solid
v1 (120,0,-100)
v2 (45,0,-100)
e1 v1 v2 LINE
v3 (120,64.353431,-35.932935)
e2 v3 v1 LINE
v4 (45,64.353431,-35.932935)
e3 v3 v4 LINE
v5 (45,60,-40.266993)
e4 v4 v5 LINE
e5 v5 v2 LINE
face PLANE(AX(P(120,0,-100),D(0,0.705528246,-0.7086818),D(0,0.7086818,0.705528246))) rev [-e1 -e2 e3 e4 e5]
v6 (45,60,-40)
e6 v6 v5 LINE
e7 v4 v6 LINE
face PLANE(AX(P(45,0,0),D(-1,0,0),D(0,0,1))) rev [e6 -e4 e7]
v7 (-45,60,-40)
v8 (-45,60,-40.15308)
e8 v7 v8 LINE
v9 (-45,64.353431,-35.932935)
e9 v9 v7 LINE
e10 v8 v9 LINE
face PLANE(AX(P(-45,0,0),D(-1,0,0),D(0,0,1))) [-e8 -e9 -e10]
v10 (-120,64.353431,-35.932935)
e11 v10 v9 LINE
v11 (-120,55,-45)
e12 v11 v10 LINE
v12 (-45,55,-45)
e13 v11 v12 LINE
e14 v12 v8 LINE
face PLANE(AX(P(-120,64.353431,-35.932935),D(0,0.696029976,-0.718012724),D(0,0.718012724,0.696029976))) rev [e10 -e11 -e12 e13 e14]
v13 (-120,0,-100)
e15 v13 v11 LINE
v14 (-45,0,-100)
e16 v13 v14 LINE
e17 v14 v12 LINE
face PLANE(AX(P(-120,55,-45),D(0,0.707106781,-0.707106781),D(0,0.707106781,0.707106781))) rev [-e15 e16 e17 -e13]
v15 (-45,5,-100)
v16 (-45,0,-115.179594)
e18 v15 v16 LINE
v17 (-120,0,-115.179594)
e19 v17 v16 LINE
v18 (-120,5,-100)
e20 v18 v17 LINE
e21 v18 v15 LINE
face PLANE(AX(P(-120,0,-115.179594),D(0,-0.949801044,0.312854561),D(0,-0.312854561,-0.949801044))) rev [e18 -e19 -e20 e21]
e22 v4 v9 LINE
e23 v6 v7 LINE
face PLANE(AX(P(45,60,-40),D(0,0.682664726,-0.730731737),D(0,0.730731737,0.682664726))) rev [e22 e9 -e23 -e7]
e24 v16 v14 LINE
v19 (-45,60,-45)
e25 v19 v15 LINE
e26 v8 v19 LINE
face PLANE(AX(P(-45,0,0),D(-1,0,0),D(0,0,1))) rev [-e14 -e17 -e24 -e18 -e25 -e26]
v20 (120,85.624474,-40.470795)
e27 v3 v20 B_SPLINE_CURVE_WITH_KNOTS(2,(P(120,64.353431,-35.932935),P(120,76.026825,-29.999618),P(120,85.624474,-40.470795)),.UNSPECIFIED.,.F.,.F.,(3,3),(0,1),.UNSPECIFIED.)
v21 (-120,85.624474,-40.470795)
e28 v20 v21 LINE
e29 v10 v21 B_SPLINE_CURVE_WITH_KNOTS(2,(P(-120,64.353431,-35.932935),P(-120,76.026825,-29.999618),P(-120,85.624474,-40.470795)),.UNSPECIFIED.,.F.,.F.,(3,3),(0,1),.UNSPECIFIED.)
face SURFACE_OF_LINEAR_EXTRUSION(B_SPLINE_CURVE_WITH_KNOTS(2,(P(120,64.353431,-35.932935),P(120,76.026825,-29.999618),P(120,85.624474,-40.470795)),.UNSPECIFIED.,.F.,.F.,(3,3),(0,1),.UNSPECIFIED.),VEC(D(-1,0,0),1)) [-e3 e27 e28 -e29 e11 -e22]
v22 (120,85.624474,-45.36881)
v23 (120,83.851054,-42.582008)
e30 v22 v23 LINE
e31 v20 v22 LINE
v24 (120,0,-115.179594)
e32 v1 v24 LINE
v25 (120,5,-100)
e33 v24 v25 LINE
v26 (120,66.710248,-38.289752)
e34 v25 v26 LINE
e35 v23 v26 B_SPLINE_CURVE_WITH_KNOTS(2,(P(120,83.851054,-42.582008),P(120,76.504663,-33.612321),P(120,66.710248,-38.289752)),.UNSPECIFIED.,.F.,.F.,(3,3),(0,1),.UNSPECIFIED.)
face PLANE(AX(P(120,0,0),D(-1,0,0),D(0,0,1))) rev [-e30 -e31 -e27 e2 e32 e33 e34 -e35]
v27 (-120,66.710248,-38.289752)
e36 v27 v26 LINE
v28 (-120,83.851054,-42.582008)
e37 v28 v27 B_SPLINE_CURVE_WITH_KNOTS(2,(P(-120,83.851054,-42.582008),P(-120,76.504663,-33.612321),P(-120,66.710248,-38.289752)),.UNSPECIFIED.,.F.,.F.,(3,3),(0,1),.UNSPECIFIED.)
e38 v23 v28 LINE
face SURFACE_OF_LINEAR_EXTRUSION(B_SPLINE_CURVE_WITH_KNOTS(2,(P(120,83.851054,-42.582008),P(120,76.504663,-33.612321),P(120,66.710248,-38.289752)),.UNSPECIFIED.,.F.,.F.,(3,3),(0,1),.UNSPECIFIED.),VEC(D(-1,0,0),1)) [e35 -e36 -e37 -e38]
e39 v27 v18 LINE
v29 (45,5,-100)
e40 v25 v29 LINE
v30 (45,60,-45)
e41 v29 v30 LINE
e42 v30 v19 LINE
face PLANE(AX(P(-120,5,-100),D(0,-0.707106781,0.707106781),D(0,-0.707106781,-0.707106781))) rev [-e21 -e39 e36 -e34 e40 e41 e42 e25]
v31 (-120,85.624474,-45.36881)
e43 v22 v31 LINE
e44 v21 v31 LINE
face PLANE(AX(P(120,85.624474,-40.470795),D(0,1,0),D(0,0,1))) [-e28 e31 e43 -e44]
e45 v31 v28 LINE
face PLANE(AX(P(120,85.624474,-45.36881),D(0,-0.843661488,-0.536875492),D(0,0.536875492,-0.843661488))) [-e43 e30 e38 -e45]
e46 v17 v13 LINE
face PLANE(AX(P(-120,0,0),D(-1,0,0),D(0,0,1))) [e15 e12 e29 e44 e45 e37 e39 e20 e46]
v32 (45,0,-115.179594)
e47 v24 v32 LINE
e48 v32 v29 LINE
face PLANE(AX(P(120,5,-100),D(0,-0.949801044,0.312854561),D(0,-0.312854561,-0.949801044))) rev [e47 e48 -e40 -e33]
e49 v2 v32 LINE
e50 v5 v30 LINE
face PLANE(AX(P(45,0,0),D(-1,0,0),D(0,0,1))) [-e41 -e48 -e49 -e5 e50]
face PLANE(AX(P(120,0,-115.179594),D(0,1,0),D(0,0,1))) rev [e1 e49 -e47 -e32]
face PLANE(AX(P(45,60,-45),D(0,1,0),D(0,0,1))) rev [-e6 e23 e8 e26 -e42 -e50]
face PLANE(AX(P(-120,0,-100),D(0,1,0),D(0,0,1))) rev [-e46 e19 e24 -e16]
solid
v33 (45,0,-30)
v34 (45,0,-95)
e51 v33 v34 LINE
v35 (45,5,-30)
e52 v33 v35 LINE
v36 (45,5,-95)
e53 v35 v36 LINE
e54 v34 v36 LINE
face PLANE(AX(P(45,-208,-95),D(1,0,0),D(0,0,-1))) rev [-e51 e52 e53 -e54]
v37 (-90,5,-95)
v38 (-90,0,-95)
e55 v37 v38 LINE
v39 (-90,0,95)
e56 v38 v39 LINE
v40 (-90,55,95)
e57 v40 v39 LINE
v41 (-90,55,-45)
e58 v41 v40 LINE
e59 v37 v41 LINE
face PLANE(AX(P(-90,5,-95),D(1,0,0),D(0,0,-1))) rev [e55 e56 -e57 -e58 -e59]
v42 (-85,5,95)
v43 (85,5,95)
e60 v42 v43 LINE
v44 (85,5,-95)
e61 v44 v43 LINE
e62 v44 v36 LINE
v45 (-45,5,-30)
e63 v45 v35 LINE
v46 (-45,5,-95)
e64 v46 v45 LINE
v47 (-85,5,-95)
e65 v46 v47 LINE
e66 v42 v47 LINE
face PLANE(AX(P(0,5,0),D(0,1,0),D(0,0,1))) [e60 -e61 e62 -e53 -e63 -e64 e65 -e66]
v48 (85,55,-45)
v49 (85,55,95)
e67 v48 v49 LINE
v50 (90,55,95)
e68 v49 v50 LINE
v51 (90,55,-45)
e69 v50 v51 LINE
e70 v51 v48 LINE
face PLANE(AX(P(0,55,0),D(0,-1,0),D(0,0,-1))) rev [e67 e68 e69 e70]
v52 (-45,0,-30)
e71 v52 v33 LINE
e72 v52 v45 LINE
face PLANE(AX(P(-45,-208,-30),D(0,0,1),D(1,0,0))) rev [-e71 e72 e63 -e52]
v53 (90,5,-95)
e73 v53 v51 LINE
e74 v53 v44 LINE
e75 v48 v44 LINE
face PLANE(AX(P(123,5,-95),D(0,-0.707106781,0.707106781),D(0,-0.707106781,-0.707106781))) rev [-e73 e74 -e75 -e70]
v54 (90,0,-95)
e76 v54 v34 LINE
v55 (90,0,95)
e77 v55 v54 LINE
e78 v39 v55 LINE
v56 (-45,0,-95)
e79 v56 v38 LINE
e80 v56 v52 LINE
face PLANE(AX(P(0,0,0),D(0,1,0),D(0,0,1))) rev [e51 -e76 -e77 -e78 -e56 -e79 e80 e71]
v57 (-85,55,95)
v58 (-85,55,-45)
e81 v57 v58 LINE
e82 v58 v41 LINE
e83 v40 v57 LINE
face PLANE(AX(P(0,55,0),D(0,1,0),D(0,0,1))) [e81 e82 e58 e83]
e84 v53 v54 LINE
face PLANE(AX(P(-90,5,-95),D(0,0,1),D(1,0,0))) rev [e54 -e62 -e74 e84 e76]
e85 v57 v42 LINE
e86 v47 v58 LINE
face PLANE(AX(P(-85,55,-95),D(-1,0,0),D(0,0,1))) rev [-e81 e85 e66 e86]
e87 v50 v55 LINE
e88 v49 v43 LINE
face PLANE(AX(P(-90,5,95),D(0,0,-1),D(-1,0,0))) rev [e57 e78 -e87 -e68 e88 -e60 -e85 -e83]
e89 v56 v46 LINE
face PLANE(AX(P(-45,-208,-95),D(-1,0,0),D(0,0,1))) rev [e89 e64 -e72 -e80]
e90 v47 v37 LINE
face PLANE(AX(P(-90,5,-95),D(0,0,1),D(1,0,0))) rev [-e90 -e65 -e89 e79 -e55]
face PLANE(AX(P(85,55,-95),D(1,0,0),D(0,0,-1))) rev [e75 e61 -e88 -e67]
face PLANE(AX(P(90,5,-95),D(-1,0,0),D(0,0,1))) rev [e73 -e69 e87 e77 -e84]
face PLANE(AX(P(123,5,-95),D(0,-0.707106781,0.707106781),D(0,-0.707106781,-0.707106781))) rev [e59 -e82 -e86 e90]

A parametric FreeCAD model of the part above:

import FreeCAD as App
import Part
import Sketcher
from FreeCAD import Vector
Q = App.Units.Quantity

doc = App.newDocument("Part")
params = doc.addObject("Spreadsheet::Sheet", "Params")
for row, (alias, value) in enumerate([
    ("sketch1_width", "180 mm"),
    ("sketch1_height", "190 mm"),
    ("pad1_length", "5 mm"),
    ("sketch2_width", "5 mm"),
    ("sketch2_height", "190 mm"),
    ("pad2_length", "50 mm"),
    ("sketch3_width", "50 mm"),
    ("pocket1_length", "213 mm"),
    ("sketch4_width", "90 mm"),
    ("sketch4_height", "65 mm"),
    ("pocket2_length", "213 mm"),
    ("pad3_length", "30 mm"),
    ("pad3_length2", "45 mm"),
    ("sketch6_height", "5 mm"),
    ("pad4_length", "90 mm"),
    ("pad5_length", "75 mm"),
    ("pad6_length", "240 mm"),
], start=1):
    params.set(f"A{row}", alias)
    params.set(f"B{row}", "=" + value)
    params.setAlias(f"B{row}", alias)

body = doc.addObject("PartDesign::Body", "Body")

# Sketch on XZ plane
sketch1 = body.newObject("Sketcher::SketchObject", "Sketch")
sketch1.AttachmentSupport = (doc.getObject("XZ_Plane"), [""])
sketch1.MapMode = "FlatFace"
sketch1.addGeometry([
    Part.LineSegment(Vector(-90, -95, 0), Vector(-90, 95, 0)),
    Part.LineSegment(Vector(-90, 95, 0), Vector(90, 95, 0)),
    Part.LineSegment(Vector(90, 95, 0), Vector(90, -95, 0)),
    Part.LineSegment(Vector(90, -95, 0), Vector(-90, -95, 0)),
], False)
sketch1.addConstraint([
    Sketcher.Constraint("Coincident", 0, 2, 1, 1),
    Sketcher.Constraint("Coincident", 1, 2, 2, 1),
    Sketcher.Constraint("Coincident", 2, 2, 3, 1),
    Sketcher.Constraint("Coincident", 3, 2, 0, 1),
    Sketcher.Constraint("Vertical", 0),
    Sketcher.Constraint("Horizontal", 1),
    Sketcher.Constraint("Vertical", 2),
    Sketcher.Constraint("Horizontal", 3),
    Sketcher.Constraint("Symmetric", 0, 2, 2, 2, -1, 1),
    Sketcher.Constraint("DistanceX", 1, 1, 1, 2, 180.0),
    Sketcher.Constraint("DistanceY", 0, 1, 0, 2, 190.0),
])
sketch1.setExpression("Constraints[9]", "Params.sketch1_width")
sketch1.setExpression("Constraints[10]", "Params.sketch1_height")
pad1 = body.newObject("PartDesign::Pad", "Pad")
pad1.Profile = sketch1
pad1.setExpression("Length", "Params.pad1_length")
pad1.Reversed = True

# Sketch on XZ plane
sketch2 = body.newObject("Sketcher::SketchObject", "Sketch001")
sketch2.AttachmentSupport = (doc.getObject("XZ_Plane"), [""])
sketch2.MapMode = "FlatFace"
sketch2.AttachmentOffset = App.Placement(Vector(0, 0, -5), App.Rotation())
sketch2.addGeometry([
    Part.LineSegment(Vector(-90, -95, 0), Vector(-90, 95, 0)),  # 0
    Part.LineSegment(Vector(-90, 95, 0), Vector(-85, 95, 0)),  # 1
    Part.LineSegment(Vector(-85, 95, 0), Vector(-85, -95, 0)),  # 2
    Part.LineSegment(Vector(-85, -95, 0), Vector(-90, -95, 0)),  # 3
    Part.LineSegment(Vector(85, -95, 0), Vector(85, 95, 0)),  # 4
    Part.LineSegment(Vector(85, 95, 0), Vector(90, 95, 0)),  # 5
    Part.LineSegment(Vector(90, 95, 0), Vector(90, -95, 0)),  # 6
    Part.LineSegment(Vector(90, -95, 0), Vector(85, -95, 0)),  # 7
], False)
sketch2.addConstraint([
    Sketcher.Constraint("Coincident", 0, 2, 1, 1),
    Sketcher.Constraint("Coincident", 1, 2, 2, 1),
    Sketcher.Constraint("Coincident", 2, 2, 3, 1),
    Sketcher.Constraint("Coincident", 3, 2, 0, 1),
    Sketcher.Constraint("Coincident", 4, 2, 5, 1),
    Sketcher.Constraint("Coincident", 5, 2, 6, 1),
    Sketcher.Constraint("Coincident", 6, 2, 7, 1),
    Sketcher.Constraint("Coincident", 7, 2, 4, 1),
    Sketcher.Constraint("Vertical", 0),
    Sketcher.Constraint("Horizontal", 1),
    Sketcher.Constraint("Vertical", 2),
    Sketcher.Constraint("Horizontal", 3),
    Sketcher.Constraint("Vertical", 4),
    Sketcher.Constraint("Horizontal", 5),
    Sketcher.Constraint("Vertical", 6),
    Sketcher.Constraint("Horizontal", 7),
    Sketcher.Constraint("Symmetric", 2, 2, 4, 2, -1, 1),
    Sketcher.Constraint("Symmetric", 0, 2, 6, 2, -1, 1),
    Sketcher.Constraint("Horizontal", 1, 2, 4, 2),
    Sketcher.Constraint("DistanceX", 1, 1, 1, 2, 5.0),
    Sketcher.Constraint("DistanceY", 0, 1, 0, 2, 190.0),
    Sketcher.Constraint("DistanceX", 0, 2, -1, 1, 90.0),
])
sketch2.setExpression("Constraints[19]", "Params.sketch2_width")
sketch2.setExpression("Constraints[20]", "Params.sketch2_height")
pad2 = body.newObject("PartDesign::Pad", "Pad001")
pad2.Profile = sketch2
pad2.setExpression("Length", "Params.pad2_length")
pad2.Reversed = True

# Sketch on YZ plane
sketch3 = body.newObject("Sketcher::SketchObject", "Sketch002")
sketch3.AttachmentSupport = (doc.getObject("YZ_Plane"), [""])
sketch3.MapMode = "FlatFace"
sketch3.AttachmentOffset = App.Placement(Vector(0, 0, -90), App.Rotation())
sketch3.addGeometry([
    Part.LineSegment(Vector(5, -95, 0), Vector(55, -45, 0)),
    Part.LineSegment(Vector(55, -45, 0), Vector(55, -95, 0)),
    Part.LineSegment(Vector(55, -95, 0), Vector(5, -95, 0)),
], False)
sketch3.addConstraint([
    Sketcher.Constraint("Coincident", 0, 2, 1, 1),
    Sketcher.Constraint("Coincident", 1, 2, 2, 1),
    Sketcher.Constraint("Coincident", 2, 2, 0, 1),
    Sketcher.Constraint("Vertical", 1),
    Sketcher.Constraint("Horizontal", 2),
    Sketcher.Constraint("Equal", 2, 1),
    Sketcher.Constraint("DistanceX", 2, 2, 2, 1, 50.0),
    Sketcher.Constraint("DistanceX", -1, 1, 0, 2, 55.0),
    Sketcher.Constraint("DistanceY", 0, 2, -1, 1, 45.0),
])
sketch3.setExpression("Constraints[6]", "Params.sketch3_width")
pocket1 = body.newObject("PartDesign::Pocket", "Pocket")
pocket1.Profile = sketch3
pocket1.setExpression("Length", "Params.pocket1_length")
pocket1.Reversed = True

# Sketch on XZ plane
sketch4 = body.newObject("Sketcher::SketchObject", "Sketch003")
sketch4.AttachmentSupport = (doc.getObject("XZ_Plane"), [""])
sketch4.MapMode = "FlatFace"
sketch4.AttachmentOffset = App.Placement(Vector(0, 0, -5), App.Rotation())
sketch4.addGeometry([
    Part.LineSegment(Vector(-45, -95, 0), Vector(-45, -30, 0)),
    Part.LineSegment(Vector(-45, -30, 0), Vector(45, -30, 0)),
    Part.LineSegment(Vector(45, -30, 0), Vector(45, -95, 0)),
    Part.LineSegment(Vector(45, -95, 0), Vector(-45, -95, 0)),
], False)
sketch4.addConstraint([
    Sketcher.Constraint("Coincident", 0, 2, 1, 1),
    Sketcher.Constraint("Coincident", 1, 2, 2, 1),
    Sketcher.Constraint("Coincident", 2, 2, 3, 1),
    Sketcher.Constraint("Coincident", 3, 2, 0, 1),
    Sketcher.Constraint("Vertical", 0),
    Sketcher.Constraint("Horizontal", 1),
    Sketcher.Constraint("Vertical", 2),
    Sketcher.Constraint("Horizontal", 3),
    Sketcher.Constraint("DistanceX", 1, 1, 1, 2, 90.0),
    Sketcher.Constraint("DistanceY", 0, 1, 0, 2, 65.0),
    Sketcher.Constraint("DistanceX", 0, 2, -1, 1, 45.0),
    Sketcher.Constraint("DistanceY", 0, 2, -1, 1, 30.0),
])
sketch4.setExpression("Constraints[8]", "Params.sketch4_width")
sketch4.setExpression("Constraints[9]", "Params.sketch4_height")
pocket2 = body.newObject("PartDesign::Pocket", "Pocket001")
pocket2.Profile = sketch4
pocket2.setExpression("Length", "Params.pocket2_length")
pocket2.Reversed = True
body2 = doc.addObject("PartDesign::Body", "Body001")

# Sketch on YZ plane
sketch5 = body2.newObject("Sketcher::SketchObject", "Sketch004")
sketch5.AttachmentSupport = (doc.getObject("YZ_Plane001"), [""])
sketch5.MapMode = "FlatFace"
sketch5.AttachmentOffset = App.Placement(Vector(0, 0, -90), App.Rotation())
sketch5.addGeometry([
    Part.LineSegment(Vector(0, -100, 0), Vector(55, -45, 0)),  # 0
    Part.LineSegment(Vector(55, -45, 0), Vector(64.4, -35.9, 0)),  # 1
    Part.LineSegment(Vector(64.4, -35.9, 0), Vector(66.7, -38.3, 0)),  # 2
    Part.LineSegment(Vector(66.7, -38.3, 0), Vector(5, -100, 0)),  # 3
    Part.LineSegment(Vector(5, -100, 0), Vector(0, -115.2, 0)),  # 4
    Part.LineSegment(Vector(0, -115.2, 0), Vector(0, -100, 0)),  # 5
], False)
sketch5.addConstraint([
    Sketcher.Constraint("Coincident", 0, 2, 1, 1),
    Sketcher.Constraint("Coincident", 1, 2, 2, 1),
    Sketcher.Constraint("Coincident", 2, 2, 3, 1),
    Sketcher.Constraint("Coincident", 3, 2, 4, 1),
    Sketcher.Constraint("Coincident", 4, 2, 5, 1),
    Sketcher.Constraint("Coincident", 5, 2, 0, 1),
    Sketcher.Constraint("Vertical", 5),
    Sketcher.Constraint("PointOnObject", 4, 2, -2),
    Sketcher.Constraint("Perpendicular", 0, 2),
    Sketcher.Constraint("Perpendicular", 2, 3),
    Sketcher.Constraint("Horizontal", 3, 2, 5, 2),
    Sketcher.Constraint("Angle", 0, Q("45 deg")),
    Sketcher.Constraint("DistanceX", -1, 1, 0, 2, 55.0),
    Sketcher.Constraint("DistanceY", 0, 2, -1, 1, 45.0),
    Sketcher.Constraint("DistanceX", -1, 1, 3, 2, 5.0),
    Sketcher.Constraint("Distance", 1, 13.026831),
    Sketcher.Constraint("Distance", 3, 87.271469),
    Sketcher.Constraint("DistanceY", 5, 1, 5, 2, 15.179594),
])
pad3 = body2.newObject("PartDesign::Pad", "Pad002")
pad3.Profile = sketch5
pad3.Type = "TwoLengths"
pad3.setExpression("Length", "Params.pad3_length")
pad3.setExpression("Length2", "Params.pad3_length2")
pad3.Reversed = True

# Sketch on YZ plane
sketch6 = body2.newObject("Sketcher::SketchObject", "Sketch005")
sketch6.AttachmentSupport = (doc.getObject("YZ_Plane001"), [""])
sketch6.MapMode = "FlatFace"
sketch6.AttachmentOffset = App.Placement(Vector(0, 0, -45), App.Rotation())
sketch6.addGeometry([
    Part.LineSegment(Vector(60, -45, 0), Vector(66.7, -38.3, 0)),
    Part.LineSegment(Vector(66.7, -38.3, 0), Vector(64.4, -35.9, 0)),
    Part.LineSegment(Vector(64.4, -35.9, 0), Vector(60, -40, 0)),
    Part.LineSegment(Vector(60, -40, 0), Vector(60, -45, 0)),
], False)
sketch6.addConstraint([
    Sketcher.Constraint("Coincident", 0, 2, 1, 1),
    Sketcher.Constraint("Coincident", 1, 2, 2, 1),
    Sketcher.Constraint("Coincident", 2, 2, 3, 1),
    Sketcher.Constraint("Coincident", 3, 2, 0, 1),
    Sketcher.Constraint("Vertical", 3),
    Sketcher.Constraint("Perpendicular", 0, 1),
    Sketcher.Constraint("DistanceY", 3, 2, 3, 1, 5.0),
    Sketcher.Constraint("Angle", 0, Q("45 deg")),
    Sketcher.Constraint("DistanceX", -1, 1, 2, 2, 60.0),
    Sketcher.Constraint("DistanceY", 2, 2, -1, 1, 40.0),
    Sketcher.Constraint("Distance", 2, 5.957632),
    Sketcher.Constraint("DistanceX", -1, 1, 1, 2, 64.353431),
])
sketch6.setExpression("Constraints[6]", "Params.sketch6_height")
pad4 = body2.newObject("PartDesign::Pad", "Pad003")
pad4.Profile = sketch6
pad4.setExpression("Length", "Params.pad4_length")

# Sketch on YZ plane
sketch7 = body2.newObject("Sketcher::SketchObject", "Sketch006")
sketch7.AttachmentSupport = (doc.getObject("YZ_Plane001"), [""])
sketch7.MapMode = "FlatFace"
sketch7.AttachmentOffset = App.Placement(Vector(0, 0, 45), App.Rotation())
sketch7.addGeometry([
    Part.LineSegment(Vector(5, -100, 0), Vector(66.7, -38.3, 0)),  # 0
    Part.LineSegment(Vector(66.7, -38.3, 0), Vector(64.4, -35.9, 0)),  # 1
    Part.LineSegment(Vector(64.4, -35.9, 0), Vector(0, -100, 0)),  # 2
    Part.LineSegment(Vector(0, -100, 0), Vector(0, -115.2, 0)),  # 3
    Part.LineSegment(Vector(0, -115.2, 0), Vector(5, -100, 0)),  # 4
], False)
sketch7.addConstraint([
    Sketcher.Constraint("Coincident", 0, 2, 1, 1),
    Sketcher.Constraint("Coincident", 1, 2, 2, 1),
    Sketcher.Constraint("Coincident", 2, 2, 3, 1),
    Sketcher.Constraint("Coincident", 3, 2, 4, 1),
    Sketcher.Constraint("Coincident", 4, 2, 0, 1),
    Sketcher.Constraint("Vertical", 3),
    Sketcher.Constraint("PointOnObject", 2, 2, -2),
    Sketcher.Constraint("Perpendicular", 0, 1),
    Sketcher.Constraint("Horizontal", 2, 2, 4, 2),
    Sketcher.Constraint("Angle", 0, Q("45 deg")),
    Sketcher.Constraint("DistanceY", 2, 2, -1, 1, 100.0),
    Sketcher.Constraint("DistanceX", -1, 1, 4, 2, 5.0),
    Sketcher.Constraint("Distance", 0, 87.271469),
    Sketcher.Constraint("DistanceY", 3, 2, 3, 1, 15.179594),
    Sketcher.Constraint("DistanceX", -1, 1, 1, 2, 64.353431),
])
pad5 = body2.newObject("PartDesign::Pad", "Pad004")
pad5.Profile = sketch7
pad5.setExpression("Length", "Params.pad5_length")

# Sketch on YZ plane
sketch8 = body2.newObject("Sketcher::SketchObject", "Sketch007")
sketch8.AttachmentSupport = (doc.getObject("YZ_Plane001"), [""])
sketch8.MapMode = "FlatFace"
sketch8.AttachmentOffset = App.Placement(Vector(0, 0, -120), App.Rotation())
sketch8.addGeometry([
    Part.LineSegment(Vector(85.624474, -40.470795, 0), Vector(85.624474, -45.36881, 0)),  # 0
    Part.LineSegment(Vector(85.624474, -45.36881, 0), Vector(83.851054, -42.582008, 0)),  # 1
    Part.BSplineCurve([Vector(66.710248, -38.289752, 0), Vector(76.504663, -33.612321, 0), Vector(83.851054, -42.582008, 0)], [3, 3], [0, 1], False, 2, [1, 1, 1], False),  # 2
    Part.LineSegment(Vector(66.710248, -38.289752, 0), Vector(64.353431, -35.932935, 0)),  # 3
    Part.BSplineCurve([Vector(64.353431, -35.932935, 0), Vector(76.026825, -29.999618, 0), Vector(85.624474, -40.470795, 0)], [3, 3], [0, 1], False, 2, [1, 1, 1], False),  # 4
], False)
sketch8.addConstraint([
    Sketcher.Constraint("Block", 2),
    Sketcher.Constraint("Block", 4),
    Sketcher.Constraint("Coincident", 0, 2, 1, 1),
    Sketcher.Constraint("Coincident", 1, 2, 2, 2),
    Sketcher.Constraint("Coincident", 2, 1, 3, 1),
    Sketcher.Constraint("Coincident", 3, 2, 4, 1),
    Sketcher.Constraint("Coincident", 4, 2, 0, 1),
    Sketcher.Constraint("Vertical", 0),
    Sketcher.Constraint("DistanceY", 0, 2, 1, 2, 2.786802),
])
pad6 = body2.newObject("PartDesign::Pad", "Pad005")
pad6.Profile = sketch8
pad6.setExpression("Length", "Params.pad6_length")

doc.recompute()
